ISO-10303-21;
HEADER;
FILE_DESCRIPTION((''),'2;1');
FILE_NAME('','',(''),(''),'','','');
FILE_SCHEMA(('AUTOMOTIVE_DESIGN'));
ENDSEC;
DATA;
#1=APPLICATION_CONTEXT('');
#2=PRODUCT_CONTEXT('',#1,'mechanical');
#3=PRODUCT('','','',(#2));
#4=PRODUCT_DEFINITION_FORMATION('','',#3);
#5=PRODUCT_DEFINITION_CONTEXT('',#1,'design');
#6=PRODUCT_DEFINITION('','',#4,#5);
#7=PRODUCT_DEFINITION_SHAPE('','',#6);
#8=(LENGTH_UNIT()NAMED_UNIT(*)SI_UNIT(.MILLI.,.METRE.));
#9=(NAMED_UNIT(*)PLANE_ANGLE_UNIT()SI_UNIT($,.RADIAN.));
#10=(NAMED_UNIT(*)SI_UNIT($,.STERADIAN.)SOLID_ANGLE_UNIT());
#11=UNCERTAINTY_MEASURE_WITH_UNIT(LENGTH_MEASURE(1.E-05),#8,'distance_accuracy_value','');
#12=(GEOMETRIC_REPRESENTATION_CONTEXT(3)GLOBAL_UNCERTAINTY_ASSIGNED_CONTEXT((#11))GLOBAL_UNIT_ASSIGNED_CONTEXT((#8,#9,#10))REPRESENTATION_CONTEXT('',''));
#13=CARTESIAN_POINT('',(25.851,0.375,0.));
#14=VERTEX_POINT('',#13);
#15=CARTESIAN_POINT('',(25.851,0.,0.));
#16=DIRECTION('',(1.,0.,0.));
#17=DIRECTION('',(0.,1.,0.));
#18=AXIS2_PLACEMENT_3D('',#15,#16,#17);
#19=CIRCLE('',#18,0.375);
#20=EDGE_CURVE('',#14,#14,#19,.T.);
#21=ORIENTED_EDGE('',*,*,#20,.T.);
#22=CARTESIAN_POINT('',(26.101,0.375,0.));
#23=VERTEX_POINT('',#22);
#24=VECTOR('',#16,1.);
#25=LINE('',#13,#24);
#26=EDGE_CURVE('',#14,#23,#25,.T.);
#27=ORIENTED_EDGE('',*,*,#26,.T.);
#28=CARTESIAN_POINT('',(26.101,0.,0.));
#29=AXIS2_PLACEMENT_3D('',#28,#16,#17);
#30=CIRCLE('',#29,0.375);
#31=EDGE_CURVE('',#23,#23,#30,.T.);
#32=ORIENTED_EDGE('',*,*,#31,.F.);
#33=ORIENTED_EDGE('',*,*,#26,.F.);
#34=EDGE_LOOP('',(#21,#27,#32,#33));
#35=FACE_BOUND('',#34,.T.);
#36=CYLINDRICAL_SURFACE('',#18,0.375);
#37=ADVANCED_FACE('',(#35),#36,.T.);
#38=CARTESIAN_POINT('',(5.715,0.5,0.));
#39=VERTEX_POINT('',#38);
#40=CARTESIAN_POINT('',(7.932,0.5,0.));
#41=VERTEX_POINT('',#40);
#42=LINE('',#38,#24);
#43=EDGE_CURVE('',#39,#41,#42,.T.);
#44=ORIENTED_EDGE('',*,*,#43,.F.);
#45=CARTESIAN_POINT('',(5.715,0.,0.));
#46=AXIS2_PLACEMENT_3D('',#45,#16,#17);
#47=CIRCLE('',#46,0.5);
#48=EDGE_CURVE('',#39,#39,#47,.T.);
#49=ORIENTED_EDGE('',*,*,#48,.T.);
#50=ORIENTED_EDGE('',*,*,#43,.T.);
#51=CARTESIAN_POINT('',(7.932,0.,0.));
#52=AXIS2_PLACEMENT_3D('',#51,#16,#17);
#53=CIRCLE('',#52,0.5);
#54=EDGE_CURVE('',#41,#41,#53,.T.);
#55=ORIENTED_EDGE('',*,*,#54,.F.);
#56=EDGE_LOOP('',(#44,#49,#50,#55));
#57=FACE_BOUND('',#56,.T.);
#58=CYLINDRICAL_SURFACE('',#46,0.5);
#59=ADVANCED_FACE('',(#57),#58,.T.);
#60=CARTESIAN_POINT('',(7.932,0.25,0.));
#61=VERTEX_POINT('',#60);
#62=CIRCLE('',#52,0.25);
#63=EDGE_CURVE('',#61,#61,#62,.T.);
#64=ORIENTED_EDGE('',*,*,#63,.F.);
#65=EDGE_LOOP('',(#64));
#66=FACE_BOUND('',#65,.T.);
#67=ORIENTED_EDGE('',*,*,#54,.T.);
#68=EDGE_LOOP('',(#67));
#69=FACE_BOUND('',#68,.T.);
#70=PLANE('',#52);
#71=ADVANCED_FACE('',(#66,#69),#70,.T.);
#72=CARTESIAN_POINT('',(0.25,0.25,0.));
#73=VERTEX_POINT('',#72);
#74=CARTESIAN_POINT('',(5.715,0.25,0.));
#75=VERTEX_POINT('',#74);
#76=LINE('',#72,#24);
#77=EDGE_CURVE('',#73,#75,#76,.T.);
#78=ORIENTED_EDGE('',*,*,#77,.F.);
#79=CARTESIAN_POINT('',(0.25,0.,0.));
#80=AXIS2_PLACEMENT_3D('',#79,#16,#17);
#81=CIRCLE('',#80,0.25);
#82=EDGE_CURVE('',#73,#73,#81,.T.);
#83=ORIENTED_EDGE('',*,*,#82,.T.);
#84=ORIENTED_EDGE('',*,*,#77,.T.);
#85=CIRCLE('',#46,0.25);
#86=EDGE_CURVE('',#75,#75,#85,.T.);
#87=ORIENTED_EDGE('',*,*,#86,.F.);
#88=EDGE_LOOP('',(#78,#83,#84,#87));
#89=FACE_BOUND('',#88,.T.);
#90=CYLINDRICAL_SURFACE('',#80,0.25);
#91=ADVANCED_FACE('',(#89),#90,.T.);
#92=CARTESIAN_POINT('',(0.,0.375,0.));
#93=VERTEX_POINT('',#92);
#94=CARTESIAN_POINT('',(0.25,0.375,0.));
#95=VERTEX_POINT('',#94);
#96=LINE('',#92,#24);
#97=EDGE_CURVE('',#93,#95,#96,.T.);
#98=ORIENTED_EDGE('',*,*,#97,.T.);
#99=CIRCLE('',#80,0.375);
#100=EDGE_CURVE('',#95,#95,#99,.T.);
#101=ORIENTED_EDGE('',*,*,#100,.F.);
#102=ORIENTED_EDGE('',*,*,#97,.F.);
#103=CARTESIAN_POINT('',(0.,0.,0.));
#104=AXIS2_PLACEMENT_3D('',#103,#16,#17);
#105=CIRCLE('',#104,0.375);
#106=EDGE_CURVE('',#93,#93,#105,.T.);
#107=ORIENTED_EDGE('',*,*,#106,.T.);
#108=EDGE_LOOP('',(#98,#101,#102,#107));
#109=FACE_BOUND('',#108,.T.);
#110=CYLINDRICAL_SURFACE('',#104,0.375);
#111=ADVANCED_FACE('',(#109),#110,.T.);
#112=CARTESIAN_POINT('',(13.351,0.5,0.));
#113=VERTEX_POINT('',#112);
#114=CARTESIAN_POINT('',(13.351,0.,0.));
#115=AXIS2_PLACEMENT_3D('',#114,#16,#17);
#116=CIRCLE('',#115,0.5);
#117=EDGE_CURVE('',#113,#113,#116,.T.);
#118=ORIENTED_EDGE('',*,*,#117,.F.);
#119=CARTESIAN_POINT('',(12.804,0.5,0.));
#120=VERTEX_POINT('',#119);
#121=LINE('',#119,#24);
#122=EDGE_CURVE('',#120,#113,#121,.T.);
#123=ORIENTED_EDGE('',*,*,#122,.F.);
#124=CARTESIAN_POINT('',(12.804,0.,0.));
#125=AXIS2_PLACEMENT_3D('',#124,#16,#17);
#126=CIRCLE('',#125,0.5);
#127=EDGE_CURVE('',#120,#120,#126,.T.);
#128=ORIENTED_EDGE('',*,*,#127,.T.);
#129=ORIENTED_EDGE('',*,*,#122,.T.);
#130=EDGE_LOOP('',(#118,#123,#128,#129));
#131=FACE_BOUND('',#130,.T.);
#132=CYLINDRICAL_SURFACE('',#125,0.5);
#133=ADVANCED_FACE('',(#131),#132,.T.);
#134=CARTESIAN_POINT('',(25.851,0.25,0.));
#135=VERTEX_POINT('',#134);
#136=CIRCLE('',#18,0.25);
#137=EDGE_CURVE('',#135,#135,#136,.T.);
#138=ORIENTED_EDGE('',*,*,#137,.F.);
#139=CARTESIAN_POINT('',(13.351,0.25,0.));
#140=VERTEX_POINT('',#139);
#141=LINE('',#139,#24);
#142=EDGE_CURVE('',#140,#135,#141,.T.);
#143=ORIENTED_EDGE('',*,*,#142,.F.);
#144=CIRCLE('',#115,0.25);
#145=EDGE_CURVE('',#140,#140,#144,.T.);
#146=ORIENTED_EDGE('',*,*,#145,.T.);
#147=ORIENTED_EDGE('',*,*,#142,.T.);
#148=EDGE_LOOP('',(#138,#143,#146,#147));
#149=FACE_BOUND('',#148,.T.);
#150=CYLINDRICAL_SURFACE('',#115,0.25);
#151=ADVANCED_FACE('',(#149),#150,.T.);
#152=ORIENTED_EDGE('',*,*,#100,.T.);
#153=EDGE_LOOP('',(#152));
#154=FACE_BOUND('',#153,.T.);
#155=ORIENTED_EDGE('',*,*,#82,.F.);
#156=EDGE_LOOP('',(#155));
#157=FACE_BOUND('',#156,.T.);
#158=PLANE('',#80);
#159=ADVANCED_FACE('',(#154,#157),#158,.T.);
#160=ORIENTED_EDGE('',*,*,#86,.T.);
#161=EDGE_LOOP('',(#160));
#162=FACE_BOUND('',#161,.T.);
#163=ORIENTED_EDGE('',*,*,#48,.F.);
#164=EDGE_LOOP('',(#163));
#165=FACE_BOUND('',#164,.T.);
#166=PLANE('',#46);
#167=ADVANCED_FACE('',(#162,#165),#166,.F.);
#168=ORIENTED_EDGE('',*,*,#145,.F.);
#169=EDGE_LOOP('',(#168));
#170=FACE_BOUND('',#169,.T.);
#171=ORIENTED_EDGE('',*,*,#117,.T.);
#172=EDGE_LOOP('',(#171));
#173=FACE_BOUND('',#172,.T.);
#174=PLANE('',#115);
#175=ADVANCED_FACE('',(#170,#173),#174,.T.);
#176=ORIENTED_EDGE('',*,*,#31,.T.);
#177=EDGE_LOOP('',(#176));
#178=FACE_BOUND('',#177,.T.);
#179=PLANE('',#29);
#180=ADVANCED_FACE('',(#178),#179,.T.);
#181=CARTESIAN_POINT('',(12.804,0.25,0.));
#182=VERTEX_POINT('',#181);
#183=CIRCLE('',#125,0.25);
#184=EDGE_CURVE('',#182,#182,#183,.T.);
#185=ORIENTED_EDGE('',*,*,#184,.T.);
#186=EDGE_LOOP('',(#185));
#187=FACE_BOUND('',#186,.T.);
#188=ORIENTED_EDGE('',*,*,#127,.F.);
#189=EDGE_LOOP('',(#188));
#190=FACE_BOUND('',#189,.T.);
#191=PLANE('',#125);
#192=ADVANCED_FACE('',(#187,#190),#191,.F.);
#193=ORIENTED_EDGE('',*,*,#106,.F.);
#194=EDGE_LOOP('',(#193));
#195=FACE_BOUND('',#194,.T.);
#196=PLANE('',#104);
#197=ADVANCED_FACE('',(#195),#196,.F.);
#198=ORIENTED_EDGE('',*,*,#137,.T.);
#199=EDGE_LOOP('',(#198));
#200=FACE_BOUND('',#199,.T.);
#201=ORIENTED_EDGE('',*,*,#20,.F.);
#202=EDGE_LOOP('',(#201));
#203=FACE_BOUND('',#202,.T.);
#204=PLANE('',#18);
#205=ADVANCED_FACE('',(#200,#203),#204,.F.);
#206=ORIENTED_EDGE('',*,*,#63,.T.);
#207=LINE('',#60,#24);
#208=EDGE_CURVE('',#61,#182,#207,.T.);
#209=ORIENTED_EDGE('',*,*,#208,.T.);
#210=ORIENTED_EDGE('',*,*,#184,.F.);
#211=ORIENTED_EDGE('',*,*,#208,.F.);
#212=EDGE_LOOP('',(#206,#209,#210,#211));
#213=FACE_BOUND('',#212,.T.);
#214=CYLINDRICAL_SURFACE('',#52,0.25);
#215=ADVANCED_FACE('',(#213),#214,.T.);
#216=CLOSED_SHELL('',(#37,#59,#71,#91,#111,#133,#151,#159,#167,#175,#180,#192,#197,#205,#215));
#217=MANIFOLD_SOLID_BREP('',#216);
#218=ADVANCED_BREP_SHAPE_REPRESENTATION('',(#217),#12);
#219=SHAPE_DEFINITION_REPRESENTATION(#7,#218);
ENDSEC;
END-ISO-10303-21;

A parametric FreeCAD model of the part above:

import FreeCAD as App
import Part
import Sketcher
from FreeCAD import Vector


def add_polygon(sketch, points):
    """Adds a closed chain of lines whose ends are joined by coincident constraints."""
    first, n = sketch.GeometryCount, len(points)
    for a, b in zip(points, points[1:] + points[:1]):
        sketch.addGeometry(Part.LineSegment(App.Vector(*a, 0), App.Vector(*b, 0)), False)
    for i in range(n):
        sketch.addConstraint(Sketcher.Constraint("Coincident", first + i, 2, first + (i + 1) % n, 1))

doc = App.newDocument("Part")
body = doc.addObject("PartDesign::Body", "Body")

sketch1 = doc.addObject("Sketcher::SketchObject", "Sketch")
body.addObject(sketch1)
sketch1.AttachmentSupport = (doc.XY_Plane, [""])
sketch1.MapMode = "FlatFace"
add_polygon(sketch1, [(0, 0.38), (0, 0), (26.1, 0), (26.1, 0.38), (25.85, 0.38), (25.85, 0.25), (13.35, 0.25), (13.35, 0.5), (12.8, 0.5), (12.8, 0.25), (7.93, 0.25), (7.93, 0.5), (5.71, 0.5), (5.71, 0.25), (0.25, 0.25), (0.25, 0.38)])
sketch1.addConstraint([
    Sketcher.Constraint("Vertical", 0),
    Sketcher.Constraint("Horizontal", 1),
    Sketcher.Constraint("Vertical", 2),
    Sketcher.Constraint("Horizontal", 3),
    Sketcher.Constraint("Vertical", 4),
    Sketcher.Constraint("Horizontal", 5),
    Sketcher.Constraint("Vertical", 6),
    Sketcher.Constraint("Horizontal", 7),
    Sketcher.Constraint("Vertical", 8),
    Sketcher.Constraint("Horizontal", 9),
    Sketcher.Constraint("Vertical", 10),
    Sketcher.Constraint("Horizontal", 11),
    Sketcher.Constraint("Vertical", 12),
    Sketcher.Constraint("Horizontal", 13),
    Sketcher.Constraint("Vertical", 14),
    Sketcher.Constraint("Horizontal", 15),
    Sketcher.Constraint("Coincident", 0, 2, -1, 1),
    Sketcher.Constraint("Horizontal", 5, 2, 8, 2),
    Sketcher.Constraint("Horizontal", 7, 2, 10, 2),
    Sketcher.Constraint("Horizontal", 9, 2, 12, 2),
    Sketcher.Constraint("Horizontal", 3, 2, 14, 2),
    Sketcher.Constraint("Equal", 3, 15),
    Sketcher.Constraint("Equal", 15, 6),
    Sketcher.Constraint("DistanceY", -1, 1, 6, 2, 0.5),
    Sketcher.Constraint("DistanceX", 5, 2, 5, 1, 12.5),
    Sketcher.Constraint("DistanceX", 3, 2, 3, 1, 0.25),
    Sketcher.Constraint("DistanceX", 1, 1, 1, 2, 26.101),
    Sketcher.Constraint("DistanceX", 7, 2, 7, 1, 0.547),
    Sketcher.Constraint("DistanceX", 9, 2, 9, 1, 4.872),
    Sketcher.Constraint("DistanceX", 11, 2, 11, 1, 2.217),
    Sketcher.Constraint("DistanceY", 0, 2, 0, 1, 0.375),
])
revolution = doc.addObject("PartDesign::Revolution", "Revolution")
body.addObject(revolution)
revolution.Profile = sketch1
revolution.ReferenceAxis = (sketch1, ["H_Axis"])
revolution.Angle = 360

doc.recompute()
